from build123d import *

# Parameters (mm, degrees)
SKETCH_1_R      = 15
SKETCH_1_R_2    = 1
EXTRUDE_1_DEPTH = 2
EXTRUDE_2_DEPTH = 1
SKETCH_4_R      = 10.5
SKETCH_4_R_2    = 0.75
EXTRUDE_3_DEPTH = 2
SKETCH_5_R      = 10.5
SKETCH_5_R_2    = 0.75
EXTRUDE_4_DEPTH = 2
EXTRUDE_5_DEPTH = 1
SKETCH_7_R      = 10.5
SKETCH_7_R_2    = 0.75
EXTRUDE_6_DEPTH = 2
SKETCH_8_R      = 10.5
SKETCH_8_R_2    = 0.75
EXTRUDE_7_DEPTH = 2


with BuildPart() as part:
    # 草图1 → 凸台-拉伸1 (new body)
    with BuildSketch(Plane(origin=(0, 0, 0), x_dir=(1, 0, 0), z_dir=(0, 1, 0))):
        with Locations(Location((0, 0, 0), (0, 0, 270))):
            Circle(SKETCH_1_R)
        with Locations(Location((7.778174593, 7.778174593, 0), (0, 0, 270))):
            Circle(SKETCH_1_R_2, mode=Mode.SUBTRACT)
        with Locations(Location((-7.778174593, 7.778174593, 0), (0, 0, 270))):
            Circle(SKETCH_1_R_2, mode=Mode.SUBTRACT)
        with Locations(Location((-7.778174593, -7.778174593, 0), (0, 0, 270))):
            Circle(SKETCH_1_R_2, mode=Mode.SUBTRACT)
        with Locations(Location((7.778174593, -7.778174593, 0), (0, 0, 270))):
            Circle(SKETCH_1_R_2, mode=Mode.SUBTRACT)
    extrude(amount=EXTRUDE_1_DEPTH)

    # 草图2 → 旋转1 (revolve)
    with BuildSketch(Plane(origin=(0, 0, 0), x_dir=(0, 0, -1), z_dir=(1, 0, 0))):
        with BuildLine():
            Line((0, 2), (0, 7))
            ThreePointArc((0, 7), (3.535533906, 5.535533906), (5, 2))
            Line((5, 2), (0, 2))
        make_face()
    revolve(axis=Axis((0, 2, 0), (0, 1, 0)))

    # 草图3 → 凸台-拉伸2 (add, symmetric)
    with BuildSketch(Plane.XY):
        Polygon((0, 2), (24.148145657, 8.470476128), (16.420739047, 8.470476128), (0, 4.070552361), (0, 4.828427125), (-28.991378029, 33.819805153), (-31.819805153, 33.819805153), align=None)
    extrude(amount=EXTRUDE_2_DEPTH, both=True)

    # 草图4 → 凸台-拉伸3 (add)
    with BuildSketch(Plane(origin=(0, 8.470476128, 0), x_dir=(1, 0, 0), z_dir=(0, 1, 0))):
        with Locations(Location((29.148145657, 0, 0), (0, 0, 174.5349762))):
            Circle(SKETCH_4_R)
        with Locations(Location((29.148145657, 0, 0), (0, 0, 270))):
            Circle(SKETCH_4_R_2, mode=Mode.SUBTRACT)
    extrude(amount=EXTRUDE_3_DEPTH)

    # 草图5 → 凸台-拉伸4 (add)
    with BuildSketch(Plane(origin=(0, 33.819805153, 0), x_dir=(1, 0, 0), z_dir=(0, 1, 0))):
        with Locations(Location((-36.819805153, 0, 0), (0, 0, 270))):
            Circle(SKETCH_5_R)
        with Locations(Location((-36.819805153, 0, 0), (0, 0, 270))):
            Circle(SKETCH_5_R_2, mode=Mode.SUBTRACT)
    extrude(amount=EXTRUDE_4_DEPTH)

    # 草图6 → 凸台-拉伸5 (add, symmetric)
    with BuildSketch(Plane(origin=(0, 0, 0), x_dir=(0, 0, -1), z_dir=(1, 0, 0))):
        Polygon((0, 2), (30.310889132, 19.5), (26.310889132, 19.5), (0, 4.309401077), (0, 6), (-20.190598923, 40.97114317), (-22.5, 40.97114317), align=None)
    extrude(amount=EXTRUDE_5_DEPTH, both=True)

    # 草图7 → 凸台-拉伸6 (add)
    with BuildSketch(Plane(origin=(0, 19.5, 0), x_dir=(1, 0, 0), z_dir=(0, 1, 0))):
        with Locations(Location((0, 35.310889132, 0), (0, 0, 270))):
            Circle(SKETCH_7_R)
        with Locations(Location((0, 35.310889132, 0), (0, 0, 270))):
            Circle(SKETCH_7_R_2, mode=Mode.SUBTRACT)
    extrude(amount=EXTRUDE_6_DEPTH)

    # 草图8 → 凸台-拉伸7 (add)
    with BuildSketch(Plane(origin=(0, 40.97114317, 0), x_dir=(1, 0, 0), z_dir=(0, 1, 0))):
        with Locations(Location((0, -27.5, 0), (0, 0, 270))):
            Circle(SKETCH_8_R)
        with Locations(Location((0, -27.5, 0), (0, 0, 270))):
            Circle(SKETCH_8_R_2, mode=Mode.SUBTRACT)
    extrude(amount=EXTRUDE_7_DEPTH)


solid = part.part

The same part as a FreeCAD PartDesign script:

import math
import FreeCAD as App
import Part
import Sketcher
Q = App.Units.Quantity

doc = App.newDocument("Part")
body = doc.addObject("PartDesign::Body", "Body")

sketch1 = doc.addObject("Sketcher::SketchObject", "Sketch")
body.addObject(sketch1)
sketch1.AttachmentSupport = (doc.XZ_Plane, [""])
sketch1.MapMode = "FlatFace"
sketch1.addGeometry([
    Part.Circle(App.Vector(0, 0, 0), App.Vector(0, 0, 1), 15),
    Part.Circle(App.Vector(-7.8, -7.8, 0), App.Vector(0, 0, 1), 1),
    Part.Circle(App.Vector(-7.8, 7.8, 0), App.Vector(0, 0, 1), 1),
    Part.Circle(App.Vector(7.8, -7.8, 0), App.Vector(0, 0, 1), 1),
    Part.Circle(App.Vector(7.8, 7.8, 0), App.Vector(0, 0, 1), 1),
], False)
sketch1.addConstraint([
    Sketcher.Constraint("Coincident", 0, 3, -1, 1),
    Sketcher.Constraint("Equal", 1, 2),
    Sketcher.Constraint("Equal", 2, 3),
    Sketcher.Constraint("Equal", 3, 4),
    Sketcher.Constraint("Symmetric", 2, 3, 3, 3, -1, 1),
    Sketcher.Constraint("Symmetric", 1, 3, 4, 3, -1, 1),
    Sketcher.Constraint("Symmetric", 1, 3, 3, 3, -2),
    Sketcher.Constraint("Diameter", 0, 30.0),
    Sketcher.Constraint("Diameter", 1, 2.0),
    Sketcher.Constraint("DistanceY", 1, 3, 2, 3, 15.556349),
    Sketcher.Constraint("DistanceX", 1, 3, 3, 3, 15.556349),
])
pad1 = doc.addObject("PartDesign::Pad", "Pad")
body.addObject(pad1)
pad1.Profile = sketch1
pad1.Length = 2
pad1.Reversed = True

sketch2 = doc.addObject("Sketcher::SketchObject", "Sketch001")
body.addObject(sketch2)
sketch2.AttachmentSupport = (doc.YZ_Plane, [""])
sketch2.MapMode = "FlatFace"
sketch2.addGeometry([
    Part.LineSegment(App.Vector(7, 0, 0), App.Vector(2, 0, 0)),
    Part.LineSegment(App.Vector(2, 0, 0), App.Vector(2, -5, 0)),
    Part.ArcOfCircle(Part.Circle(App.Vector(2, 0, 0), App.Vector(0, 0, 1), 5), math.radians(-90), math.radians(0)),
], False)
sketch2.addConstraint([
    Sketcher.Constraint("Coincident", 0, 2, 1, 1),
    Sketcher.Constraint("Coincident", 1, 2, 2, 1),
    Sketcher.Constraint("Coincident", 2, 2, 0, 1),
    Sketcher.Constraint("Horizontal", 0),
    Sketcher.Constraint("Vertical", 1),
    Sketcher.Constraint("Coincident", 0, 2, 2, 3),
    Sketcher.Constraint("PointOnObject", 2, 3, -1),
    Sketcher.Constraint("Radius", 2, 5.0),
    Sketcher.Constraint("DistanceX", -1, 1, 2, 3, 2.0),
])
revolution = doc.addObject("PartDesign::Revolution", "Revolution")
body.addObject(revolution)
revolution.Profile = sketch2
revolution.ReferenceAxis = (sketch2, ["H_Axis"])
revolution.Angle = 360

sketch3 = doc.addObject("Sketcher::SketchObject", "Sketch002")
body.addObject(sketch3)
sketch3.AttachmentSupport = (doc.XY_Plane, [""])
sketch3.MapMode = "FlatFace"
sketch3.addGeometry([
    Part.LineSegment(App.Vector(0, 2, 0), App.Vector(24.1, 8.5, 0)),
    Part.LineSegment(App.Vector(24.1, 8.5, 0), App.Vector(16.4, 8.5, 0)),
    Part.LineSegment(App.Vector(16.4, 8.5, 0), App.Vector(0, 4.1, 0)),
    Part.LineSegment(App.Vector(0, 4.1, 0), App.Vector(0, 4.8, 0)),
    Part.LineSegment(App.Vector(0, 4.8, 0), App.Vector(-29, 33.8, 0)),
    Part.LineSegment(App.Vector(-29, 33.8, 0), App.Vector(-31.8, 33.8, 0)),
    Part.LineSegment(App.Vector(-31.8, 33.8, 0), App.Vector(0, 2, 0)),
], False)
sketch3.addConstraint([
    Sketcher.Constraint("Coincident", 0, 2, 1, 1),
    Sketcher.Constraint("Coincident", 1, 2, 2, 1),
    Sketcher.Constraint("Coincident", 2, 2, 3, 1),
    Sketcher.Constraint("Coincident", 3, 2, 4, 1),
    Sketcher.Constraint("Coincident", 4, 2, 5, 1),
    Sketcher.Constraint("Coincident", 5, 2, 6, 1),
    Sketcher.Constraint("Coincident", 6, 2, 0, 1),
    Sketcher.Constraint("Horizontal", 1),
    Sketcher.Constraint("Vertical", 3),
    Sketcher.Constraint("Horizontal", 5),
    Sketcher.Constraint("PointOnObject", 2, 2, -2),
    Sketcher.Constraint("PointOnObject", 6, 2, -2),
    Sketcher.Constraint("Parallel", 0, 2),
    Sketcher.Constraint("Parallel", 4, 6),
    Sketcher.Constraint("Angle", 0, Q("15 deg")),
    Sketcher.Constraint("Angle", 4, Q("135 deg")),
    Sketcher.Constraint("Distance", 0, 25.0),
    Sketcher.Constraint("Distance", 2, 17.0),
    Sketcher.Constraint("Distance", 4, 41.0),
    Sketcher.Constraint("Distance", 6, 45.0),
    Sketcher.Constraint("DistanceY", -1, 1, 6, 2, 2.0),
])
pad2 = doc.addObject("PartDesign::Pad", "Pad001")
body.addObject(pad2)
pad2.Profile = sketch3
pad2.Length = 2
pad2.Midplane = True

sketch4 = doc.addObject("Sketcher::SketchObject", "Sketch003")
body.addObject(sketch4)
sketch4.AttachmentSupport = (doc.XZ_Plane, [""])
sketch4.MapMode = "FlatFace"
sketch4.AttachmentOffset = App.Placement(App.Vector(0, 0, -8.470476), App.Rotation())
sketch4.addGeometry([
    Part.Circle(App.Vector(29.1, 0, 0), App.Vector(0, 0, 1), 10.5),
    Part.Circle(App.Vector(29.1, 0, 0), App.Vector(0, 0, 1), 0.8),
], False)
sketch4.addConstraint([
    Sketcher.Constraint("Coincident", 1, 3, 0, 3),
    Sketcher.Constraint("PointOnObject", 0, 3, -1),
    Sketcher.Constraint("Diameter", 0, 21.0),
    Sketcher.Constraint("Diameter", 1, 1.5),
    Sketcher.Constraint("DistanceX", -1, 1, 0, 3, 29.148146),
])
pad3 = doc.addObject("PartDesign::Pad", "Pad002")
body.addObject(pad3)
pad3.Profile = sketch4
pad3.Length = 2
pad3.Reversed = True

sketch5 = doc.addObject("Sketcher::SketchObject", "Sketch004")
body.addObject(sketch5)
sketch5.AttachmentSupport = (doc.XZ_Plane, [""])
sketch5.MapMode = "FlatFace"
sketch5.AttachmentOffset = App.Placement(App.Vector(0, 0, -33.819805), App.Rotation())
sketch5.addGeometry([
    Part.Circle(App.Vector(-36.8, 0, 0), App.Vector(0, 0, 1), 10.5),
    Part.Circle(App.Vector(-36.8, 0, 0), App.Vector(0, 0, 1), 0.8),
], False)
sketch5.addConstraint([
    Sketcher.Constraint("Coincident", 1, 3, 0, 3),
    Sketcher.Constraint("PointOnObject", 0, 3, -1),
    Sketcher.Constraint("Diameter", 0, 21.0),
    Sketcher.Constraint("Diameter", 1, 1.5),
    Sketcher.Constraint("DistanceX", 0, 3, -1, 1, 36.819805),
])
pad4 = doc.addObject("PartDesign::Pad", "Pad003")
body.addObject(pad4)
pad4.Profile = sketch5
pad4.Length = 2
pad4.Reversed = True

sketch6 = doc.addObject("Sketcher::SketchObject", "Sketch005")
body.addObject(sketch6)
sketch6.AttachmentSupport = (doc.YZ_Plane, [""])
sketch6.MapMode = "FlatFace"
sketch6.addGeometry([
    Part.LineSegment(App.Vector(2, 0, 0), App.Vector(19.5, -30.3, 0)),
    Part.LineSegment(App.Vector(19.5, -30.3, 0), App.Vector(19.5, -26.3, 0)),
    Part.LineSegment(App.Vector(19.5, -26.3, 0), App.Vector(4.3, 0, 0)),
    Part.LineSegment(App.Vector(4.3, 0, 0), App.Vector(6, 0, 0)),
    Part.LineSegment(App.Vector(6, 0, 0), App.Vector(41, 20.2, 0)),
    Part.LineSegment(App.Vector(41, 20.2, 0), App.Vector(41, 22.5, 0)),
    Part.LineSegment(App.Vector(41, 22.5, 0), App.Vector(2, 0, 0)),
], False)
sketch6.addConstraint([
    Sketcher.Constraint("Coincident", 0, 2, 1, 1),
    Sketcher.Constraint("Coincident", 1, 2, 2, 1),
    Sketcher.Constraint("Coincident", 2, 2, 3, 1),
    Sketcher.Constraint("Coincident", 3, 2, 4, 1),
    Sketcher.Constraint("Coincident", 4, 2, 5, 1),
    Sketcher.Constraint("Coincident", 5, 2, 6, 1),
    Sketcher.Constraint("Coincident", 6, 2, 0, 1),
    Sketcher.Constraint("Vertical", 1),
    Sketcher.Constraint("Horizontal", 3),
    Sketcher.Constraint("Vertical", 5),
    Sketcher.Constraint("PointOnObject", 2, 2, -1),
    Sketcher.Constraint("PointOnObject", 6, 2, -1),
    Sketcher.Constraint("Parallel", 0, 2),
    Sketcher.Constraint("Perpendicular", 2, 4),
    Sketcher.Constraint("Parallel", 4, 6),
    Sketcher.Constraint("DistanceY", 1, 1, 1, 2, 4.0),
    Sketcher.Constraint("Angle", 0, Q("-60 deg")),
    Sketcher.Constraint("Distance", 0, 35.0),
    Sketcher.Constraint("Distance", 6, 45.0),
    Sketcher.Constraint("DistanceX", -1, 1, 3, 2, 6.0),
    Sketcher.Constraint("DistanceX", -1, 1, 6, 2, 2.0),
])
pad5 = doc.addObject("PartDesign::Pad", "Pad004")
body.addObject(pad5)
pad5.Profile = sketch6
pad5.Length = 2
pad5.Midplane = True

sketch7 = doc.addObject("Sketcher::SketchObject", "Sketch006")
body.addObject(sketch7)
sketch7.AttachmentSupport = (doc.XZ_Plane, [""])
sketch7.MapMode = "FlatFace"
sketch7.AttachmentOffset = App.Placement(App.Vector(0, 0, -19.5), App.Rotation())
sketch7.addGeometry([
    Part.Circle(App.Vector(0, -35.3, 0), App.Vector(0, 0, 1), 10.5),
    Part.Circle(App.Vector(0, -35.3, 0), App.Vector(0, 0, 1), 0.8),
], False)
sketch7.addConstraint([
    Sketcher.Constraint("Coincident", 1, 3, 0, 3),
    Sketcher.Constraint("PointOnObject", 0, 3, -2),
    Sketcher.Constraint("Diameter", 0, 21.0),
    Sketcher.Constraint("Diameter", 1, 1.5),
    Sketcher.Constraint("DistanceY", 0, 3, -1, 1, 35.310889),
])
pad6 = doc.addObject("PartDesign::Pad", "Pad005")
body.addObject(pad6)
pad6.Profile = sketch7
pad6.Length = 2
pad6.Reversed = True

sketch8 = doc.addObject("Sketcher::SketchObject", "Sketch007")
body.addObject(sketch8)
sketch8.AttachmentSupport = (doc.XZ_Plane, [""])
sketch8.MapMode = "FlatFace"
sketch8.AttachmentOffset = App.Placement(App.Vector(0, 0, -40.971143), App.Rotation())
sketch8.addGeometry([
    Part.Circle(App.Vector(0, 27.5, 0), App.Vector(0, 0, 1), 10.5),
    Part.Circle(App.Vector(0, 27.5, 0), App.Vector(0, 0, 1), 0.8),
], False)
sketch8.addConstraint([
    Sketcher.Constraint("Coincident", 1, 3, 0, 3),
    Sketcher.Constraint("PointOnObject", 0, 3, -2),
    Sketcher.Constraint("Diameter", 0, 21.0),
    Sketcher.Constraint("Diameter", 1, 1.5),
    Sketcher.Constraint("DistanceY", -1, 1, 0, 3, 27.5),
])
pad7 = doc.addObject("PartDesign::Pad", "Pad006")
body.addObject(pad7)
pad7.Profile = sketch8
pad7.Length = 2
pad7.Reversed = True

doc.recompute()
